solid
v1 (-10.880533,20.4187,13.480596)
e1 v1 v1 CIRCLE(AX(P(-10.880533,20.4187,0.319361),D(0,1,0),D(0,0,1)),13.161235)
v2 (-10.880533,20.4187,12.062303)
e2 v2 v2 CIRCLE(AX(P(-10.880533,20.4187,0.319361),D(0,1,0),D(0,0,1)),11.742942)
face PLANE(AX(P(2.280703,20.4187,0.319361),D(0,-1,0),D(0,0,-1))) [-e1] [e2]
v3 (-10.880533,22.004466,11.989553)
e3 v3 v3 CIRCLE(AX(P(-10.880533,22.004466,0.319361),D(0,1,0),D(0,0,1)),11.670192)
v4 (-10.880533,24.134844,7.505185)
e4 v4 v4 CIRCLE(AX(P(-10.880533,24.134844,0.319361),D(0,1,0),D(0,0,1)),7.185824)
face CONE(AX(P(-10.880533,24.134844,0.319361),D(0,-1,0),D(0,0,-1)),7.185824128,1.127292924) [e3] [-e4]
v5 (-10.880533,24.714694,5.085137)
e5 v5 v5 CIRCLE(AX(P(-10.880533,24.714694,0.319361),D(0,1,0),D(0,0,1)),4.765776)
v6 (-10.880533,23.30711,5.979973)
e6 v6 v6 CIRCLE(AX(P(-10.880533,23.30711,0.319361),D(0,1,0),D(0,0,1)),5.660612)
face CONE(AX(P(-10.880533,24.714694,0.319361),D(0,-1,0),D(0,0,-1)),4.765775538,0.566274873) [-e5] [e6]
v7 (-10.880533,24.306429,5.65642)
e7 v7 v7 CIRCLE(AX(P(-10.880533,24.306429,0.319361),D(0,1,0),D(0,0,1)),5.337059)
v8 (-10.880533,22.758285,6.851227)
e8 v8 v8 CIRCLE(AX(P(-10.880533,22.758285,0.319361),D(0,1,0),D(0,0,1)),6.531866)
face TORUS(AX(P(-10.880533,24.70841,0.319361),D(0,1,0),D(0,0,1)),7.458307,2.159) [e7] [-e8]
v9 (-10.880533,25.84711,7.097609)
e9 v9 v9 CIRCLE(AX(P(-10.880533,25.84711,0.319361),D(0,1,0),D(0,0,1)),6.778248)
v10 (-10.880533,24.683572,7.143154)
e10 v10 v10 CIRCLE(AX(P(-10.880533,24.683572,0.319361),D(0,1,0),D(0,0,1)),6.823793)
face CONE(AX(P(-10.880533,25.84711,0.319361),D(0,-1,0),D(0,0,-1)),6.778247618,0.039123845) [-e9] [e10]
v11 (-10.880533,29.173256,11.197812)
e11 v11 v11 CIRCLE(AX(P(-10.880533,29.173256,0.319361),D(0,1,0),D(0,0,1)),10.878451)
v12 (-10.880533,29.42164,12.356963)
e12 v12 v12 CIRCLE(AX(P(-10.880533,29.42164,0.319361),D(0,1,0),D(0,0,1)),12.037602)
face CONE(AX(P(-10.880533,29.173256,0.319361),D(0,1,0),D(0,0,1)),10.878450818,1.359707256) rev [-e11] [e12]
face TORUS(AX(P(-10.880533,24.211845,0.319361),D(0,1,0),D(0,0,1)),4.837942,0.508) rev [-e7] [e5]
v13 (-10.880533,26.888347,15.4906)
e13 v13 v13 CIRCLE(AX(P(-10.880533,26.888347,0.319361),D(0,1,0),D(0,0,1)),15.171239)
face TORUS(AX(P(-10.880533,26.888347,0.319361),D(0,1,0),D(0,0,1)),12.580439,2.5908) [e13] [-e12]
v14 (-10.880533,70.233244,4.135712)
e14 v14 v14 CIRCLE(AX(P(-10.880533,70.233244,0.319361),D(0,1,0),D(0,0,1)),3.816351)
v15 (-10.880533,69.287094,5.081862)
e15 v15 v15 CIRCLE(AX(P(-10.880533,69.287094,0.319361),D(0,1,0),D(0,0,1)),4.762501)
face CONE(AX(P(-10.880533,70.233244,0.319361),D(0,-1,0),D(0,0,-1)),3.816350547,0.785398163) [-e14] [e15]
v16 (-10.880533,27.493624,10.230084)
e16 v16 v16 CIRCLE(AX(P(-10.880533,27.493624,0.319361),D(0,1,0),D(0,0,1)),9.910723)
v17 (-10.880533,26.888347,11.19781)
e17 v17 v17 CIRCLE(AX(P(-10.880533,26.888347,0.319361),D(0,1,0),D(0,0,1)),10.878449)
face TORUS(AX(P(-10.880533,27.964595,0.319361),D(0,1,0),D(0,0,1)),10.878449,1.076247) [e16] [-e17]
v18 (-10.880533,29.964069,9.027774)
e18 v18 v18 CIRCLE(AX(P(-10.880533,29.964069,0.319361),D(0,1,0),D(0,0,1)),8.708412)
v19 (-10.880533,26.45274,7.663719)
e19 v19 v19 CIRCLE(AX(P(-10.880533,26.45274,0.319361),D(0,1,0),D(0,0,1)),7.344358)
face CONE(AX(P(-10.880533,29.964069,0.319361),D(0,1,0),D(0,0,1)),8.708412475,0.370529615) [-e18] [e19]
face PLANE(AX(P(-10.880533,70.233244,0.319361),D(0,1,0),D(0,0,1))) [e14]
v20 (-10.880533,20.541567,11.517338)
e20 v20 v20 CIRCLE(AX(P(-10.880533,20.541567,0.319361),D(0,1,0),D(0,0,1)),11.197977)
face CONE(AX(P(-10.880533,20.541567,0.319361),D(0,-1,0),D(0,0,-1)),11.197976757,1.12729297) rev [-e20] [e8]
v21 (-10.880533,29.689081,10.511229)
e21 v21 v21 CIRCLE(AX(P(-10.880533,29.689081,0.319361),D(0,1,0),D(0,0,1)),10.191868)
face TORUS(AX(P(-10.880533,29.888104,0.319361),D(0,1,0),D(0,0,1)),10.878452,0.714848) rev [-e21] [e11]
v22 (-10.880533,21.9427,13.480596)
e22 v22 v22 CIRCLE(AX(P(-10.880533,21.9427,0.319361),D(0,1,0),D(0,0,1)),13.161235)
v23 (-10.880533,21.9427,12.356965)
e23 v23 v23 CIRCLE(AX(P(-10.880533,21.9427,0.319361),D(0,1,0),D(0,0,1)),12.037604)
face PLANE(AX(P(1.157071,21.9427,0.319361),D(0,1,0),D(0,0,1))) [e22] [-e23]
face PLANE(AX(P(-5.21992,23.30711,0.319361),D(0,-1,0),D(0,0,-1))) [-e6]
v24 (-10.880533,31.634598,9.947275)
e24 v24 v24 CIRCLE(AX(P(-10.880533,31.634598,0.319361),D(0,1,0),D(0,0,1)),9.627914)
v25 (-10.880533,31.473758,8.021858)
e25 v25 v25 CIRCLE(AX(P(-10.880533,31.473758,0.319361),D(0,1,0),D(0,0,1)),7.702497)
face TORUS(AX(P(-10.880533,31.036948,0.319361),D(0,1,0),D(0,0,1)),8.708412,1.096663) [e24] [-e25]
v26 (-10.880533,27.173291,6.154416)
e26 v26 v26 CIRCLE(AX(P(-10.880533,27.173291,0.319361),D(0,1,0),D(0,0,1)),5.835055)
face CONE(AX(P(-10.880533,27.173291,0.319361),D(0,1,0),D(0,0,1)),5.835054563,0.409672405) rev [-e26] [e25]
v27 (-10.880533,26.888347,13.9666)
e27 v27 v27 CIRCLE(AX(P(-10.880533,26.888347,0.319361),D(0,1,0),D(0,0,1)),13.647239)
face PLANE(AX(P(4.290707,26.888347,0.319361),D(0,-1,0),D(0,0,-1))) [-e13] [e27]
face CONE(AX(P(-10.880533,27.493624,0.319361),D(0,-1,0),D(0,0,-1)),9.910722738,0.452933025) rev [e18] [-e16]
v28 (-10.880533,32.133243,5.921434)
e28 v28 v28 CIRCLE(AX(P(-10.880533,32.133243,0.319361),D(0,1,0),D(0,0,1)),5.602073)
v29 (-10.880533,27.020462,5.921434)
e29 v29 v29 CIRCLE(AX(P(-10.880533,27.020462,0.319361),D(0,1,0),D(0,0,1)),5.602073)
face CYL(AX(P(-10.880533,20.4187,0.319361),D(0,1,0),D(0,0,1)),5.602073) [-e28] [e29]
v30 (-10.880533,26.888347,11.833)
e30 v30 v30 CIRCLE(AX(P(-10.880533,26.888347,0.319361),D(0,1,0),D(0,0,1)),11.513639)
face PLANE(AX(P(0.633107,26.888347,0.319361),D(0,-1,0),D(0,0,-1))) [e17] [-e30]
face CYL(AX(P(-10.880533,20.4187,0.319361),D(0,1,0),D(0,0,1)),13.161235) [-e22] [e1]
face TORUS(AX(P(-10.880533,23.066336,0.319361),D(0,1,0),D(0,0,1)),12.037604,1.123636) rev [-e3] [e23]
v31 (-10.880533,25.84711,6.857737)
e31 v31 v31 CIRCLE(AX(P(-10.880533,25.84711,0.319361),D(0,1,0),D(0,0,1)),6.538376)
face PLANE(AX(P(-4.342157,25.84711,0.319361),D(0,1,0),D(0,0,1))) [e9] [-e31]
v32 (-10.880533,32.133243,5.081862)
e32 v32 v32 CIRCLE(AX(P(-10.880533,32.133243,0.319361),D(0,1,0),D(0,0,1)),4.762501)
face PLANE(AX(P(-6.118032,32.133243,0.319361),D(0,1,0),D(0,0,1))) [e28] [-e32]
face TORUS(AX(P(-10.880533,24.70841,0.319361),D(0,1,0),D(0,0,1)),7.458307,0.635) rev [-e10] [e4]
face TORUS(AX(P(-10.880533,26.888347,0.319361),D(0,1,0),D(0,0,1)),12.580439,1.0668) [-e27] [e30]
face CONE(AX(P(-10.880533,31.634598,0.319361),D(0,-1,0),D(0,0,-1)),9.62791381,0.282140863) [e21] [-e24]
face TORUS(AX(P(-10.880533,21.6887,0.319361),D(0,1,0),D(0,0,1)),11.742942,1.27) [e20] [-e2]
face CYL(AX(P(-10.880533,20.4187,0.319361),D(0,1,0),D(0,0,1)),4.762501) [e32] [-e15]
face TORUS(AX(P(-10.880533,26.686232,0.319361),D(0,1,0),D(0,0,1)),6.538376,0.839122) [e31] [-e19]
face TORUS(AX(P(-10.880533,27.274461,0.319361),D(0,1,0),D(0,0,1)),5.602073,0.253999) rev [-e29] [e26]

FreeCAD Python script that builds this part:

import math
import FreeCAD as App
import Part
import Sketcher
from FreeCAD import Vector
Q = App.Units.Quantity

doc = App.newDocument("Part")
body = doc.addObject("PartDesign::Body", "Body")

# Sketch on XY plane
sketch1 = doc.addObject("Sketcher::SketchObject", "Sketch")
body.addObject(sketch1)
sketch1.AttachmentSupport = (doc.XY_Plane, [""])
sketch1.MapMode = "FlatFace"
sketch1.AttachmentOffset = App.Placement(Vector(0, 0, 0.319361), App.Rotation())
sketch1.addGeometry(Part.LineSegment(Vector(-5.22, 23.31, 0), Vector(-10.88, 23.31, 0)), False)
sketch1.addGeometry(Part.LineSegment(Vector(-10.88, 23.31, 0), Vector(-10.88, 70.23, 0)), False)
sketch1.addGeometry(Part.LineSegment(Vector(-10.88, 70.23, 0), Vector(-7.06, 70.23, 0)), False)
sketch1.addGeometry(Part.LineSegment(Vector(-7.06, 70.23, 0), Vector(-6.12, 69.29, 0)), False)
sketch1.addGeometry(Part.LineSegment(Vector(-6.12, 69.29, 0), Vector(-6.12, 32.13, 0)), False)
sketch1.addGeometry(Part.LineSegment(Vector(-6.12, 32.13, 0), Vector(-5.28, 32.13, 0)), False)
sketch1.addGeometry(Part.LineSegment(Vector(-5.28, 32.13, 0), Vector(-5.28, 27.02, 0)), False)
sketch1.addGeometry(Part.ArcOfCircle(Part.Circle(Vector(-5.28, 27.27, 0), Vector(0, 0, 1), 0.25), math.radians(-90), math.radians(-23)), False)
sketch1.addGeometry(Part.LineSegment(Vector(-5.05, 27.17, 0), Vector(-3.18, 31.47, 0)), False)
sketch1.addGeometry(Part.ArcOfCircle(Part.Circle(Vector(-2.17, 31.04, 0), Vector(0, 0, 1), 1.1), math.radians(33), math.radians(157)), False)
sketch1.addGeometry(Part.LineSegment(Vector(-1.25, 31.63, 0), Vector(-0.69, 29.69, 0)), False)
sketch1.addGeometry(Part.ArcOfCircle(Part.Circle(Vector(0, 29.89, 0), Vector(0, 0, 1), 0.71), math.radians(-164), math.radians(-90)), False)
sketch1.addGeometry(Part.LineSegment(Vector(0, 29.17, 0), Vector(1.16, 29.42, 0)), False)
sketch1.addGeometry(Part.ArcOfCircle(Part.Circle(Vector(1.7, 26.89, 0), Vector(0, 0, 1), 2.59), math.radians(0), math.radians(102)), False)
sketch1.addGeometry(Part.LineSegment(Vector(4.29, 26.89, 0), Vector(2.77, 26.89, 0)), False)
sketch1.addGeometry(Part.ArcOfCircle(Part.Circle(Vector(1.7, 26.89, 0), Vector(0, 0, 1), 1.07), math.radians(180), math.radians(360)), False)
sketch1.addGeometry(Part.LineSegment(Vector(0.63, 26.89, 0), Vector(0, 26.89, 0)), False)
sketch1.addGeometry(Part.ArcOfCircle(Part.Circle(Vector(0, 27.96, 0), Vector(0, 0, 1), 1.08), math.radians(-154), math.radians(-90)), False)
sketch1.addGeometry(Part.LineSegment(Vector(-0.97, 27.49, 0), Vector(-2.17, 29.96, 0)), False)
sketch1.addGeometry(Part.LineSegment(Vector(-2.17, 29.96, 0), Vector(-3.54, 26.45, 0)), False)
sketch1.addGeometry(Part.ArcOfCircle(Part.Circle(Vector(-4.34, 26.69, 0), Vector(0, 0, 1), 0.84), math.radians(-90), math.radians(-16)), False)
sketch1.addGeometry(Part.LineSegment(Vector(-4.34, 25.85, 0), Vector(-4.1, 25.85, 0)), False)
sketch1.addGeometry(Part.LineSegment(Vector(-4.1, 25.85, 0), Vector(-4.06, 24.68, 0)), False)
sketch1.addGeometry(Part.ArcOfCircle(Part.Circle(Vector(-3.42, 24.71, 0), Vector(0, 0, 1), 0.63), math.radians(-178), math.radians(-115)), False)
sketch1.addGeometry(Part.LineSegment(Vector(-3.69, 24.13, 0), Vector(0.79, 22, 0)), False)
sketch1.addGeometry(Part.ArcOfCircle(Part.Circle(Vector(1.16, 23.07, 0), Vector(0, 0, 1), 1.12), math.radians(-109.09), math.radians(-90)), False)
sketch1.addGeometry(Part.LineSegment(Vector(1.16, 21.94, 0), Vector(2.28, 21.94, 0)), False)
sketch1.addGeometry(Part.LineSegment(Vector(2.28, 21.94, 0), Vector(2.28, 20.42, 0)), False)
sketch1.addGeometry(Part.LineSegment(Vector(2.28, 20.42, 0), Vector(0.86, 20.42, 0)), False)
sketch1.addGeometry(Part.ArcOfCircle(Part.Circle(Vector(0.86, 21.69, 0), Vector(0, 0, 1), 1.27), math.radians(-115), math.radians(-90)), False)
sketch1.addGeometry(Part.LineSegment(Vector(0.32, 20.54, 0), Vector(-4.35, 22.76, 0)), False)
sketch1.addGeometry(Part.ArcOfCircle(Part.Circle(Vector(-3.42, 24.71, 0), Vector(0, 0, 1), 2.16), math.radians(-169), math.radians(-115)), False)
sketch1.addGeometry(Part.ArcOfCircle(Part.Circle(Vector(-6.04, 24.21, 0), Vector(0, 0, 1), 0.51), math.radians(11), math.radians(98)), False)
sketch1.addGeometry(Part.LineSegment(Vector(-6.11, 24.71, 0), Vector(-5.22, 23.31, 0)), False)
sketch1.addGeometry(Part.LineSegment(Vector(-10.88, 20.42, 0), Vector(-10.88, 70.23, 0)), True)  # axis
sketch1.addConstraint(Sketcher.Constraint("Coincident", 0, 2, 1, 1))
sketch1.addConstraint(Sketcher.Constraint("Coincident", 1, 2, 2, 1))
sketch1.addConstraint(Sketcher.Constraint("Coincident", 2, 2, 3, 1))
sketch1.addConstraint(Sketcher.Constraint("Coincident", 3, 2, 4, 1))
sketch1.addConstraint(Sketcher.Constraint("Coincident", 4, 2, 5, 1))
sketch1.addConstraint(Sketcher.Constraint("Coincident", 5, 2, 6, 1))
sketch1.addConstraint(Sketcher.Constraint("Coincident", 6, 2, 7, 1))
sketch1.addConstraint(Sketcher.Constraint("Tangent", 7, 2, 8, 1))
sketch1.addConstraint(Sketcher.Constraint("Tangent", 8, 2, 9, 2))
sketch1.addConstraint(Sketcher.Constraint("Coincident", 9, 1, 10, 1))
sketch1.addConstraint(Sketcher.Constraint("Tangent", 10, 2, 11, 1))
sketch1.addConstraint(Sketcher.Constraint("Coincident", 11, 2, 12, 1))
sketch1.addConstraint(Sketcher.Constraint("Tangent", 12, 2, 13, 2))
sketch1.addConstraint(Sketcher.Constraint("Coincident", 13, 1, 14, 1))
sketch1.addConstraint(Sketcher.Constraint("Coincident", 14, 2, 15, 2))
sketch1.addConstraint(Sketcher.Constraint("Coincident", 15, 1, 16, 1))
sketch1.addConstraint(Sketcher.Constraint("Tangent", 16, 2, 17, 2))
sketch1.addConstraint(Sketcher.Constraint("Tangent", 17, 1, 18, 1))
sketch1.addConstraint(Sketcher.Constraint("Coincident", 18, 2, 19, 1))
sketch1.addConstraint(Sketcher.Constraint("Coincident", 19, 2, 20, 2))
sketch1.addConstraint(Sketcher.Constraint("Tangent", 20, 1, 21, 1))
sketch1.addConstraint(Sketcher.Constraint("Coincident", 21, 2, 22, 1))
sketch1.addConstraint(Sketcher.Constraint("Tangent", 22, 2, 23, 1))
sketch1.addConstraint(Sketcher.Constraint("Tangent", 23, 2, 24, 1))
sketch1.addConstraint(Sketcher.Constraint("Coincident", 24, 2, 25, 1))
sketch1.addConstraint(Sketcher.Constraint("Tangent", 25, 2, 26, 1))
sketch1.addConstraint(Sketcher.Constraint("Coincident", 26, 2, 27, 1))
sketch1.addConstraint(Sketcher.Constraint("Coincident", 27, 2, 28, 1))
sketch1.addConstraint(Sketcher.Constraint("Tangent", 28, 2, 29, 2))
sketch1.addConstraint(Sketcher.Constraint("Tangent", 29, 1, 30, 1))
sketch1.addConstraint(Sketcher.Constraint("Tangent", 30, 2, 31, 2))
sketch1.addConstraint(Sketcher.Constraint("Tangent", 31, 1, 32, 1))
sketch1.addConstraint(Sketcher.Constraint("Coincident", 32, 2, 33, 1))
sketch1.addConstraint(Sketcher.Constraint("Coincident", 33, 2, 0, 1))
sketch1.addConstraint(Sketcher.Constraint("Horizontal", 0))
sketch1.addConstraint(Sketcher.Constraint("Vertical", 1))
sketch1.addConstraint(Sketcher.Constraint("Horizontal", 2))
sketch1.addConstraint(Sketcher.Constraint("Vertical", 4))
sketch1.addConstraint(Sketcher.Constraint("Horizontal", 5))
sketch1.addConstraint(Sketcher.Constraint("Vertical", 6))
sketch1.addConstraint(Sketcher.Constraint("Horizontal", 14))
sketch1.addConstraint(Sketcher.Constraint("Horizontal", 16))
sketch1.addConstraint(Sketcher.Constraint("Horizontal", 21))
sketch1.addConstraint(Sketcher.Constraint("Horizontal", 26))
sketch1.addConstraint(Sketcher.Constraint("Vertical", 27))
sketch1.addConstraint(Sketcher.Constraint("Horizontal", 28))
sketch1.addConstraint(Sketcher.Constraint("Vertical", 34))
sketch1.addConstraint(Sketcher.Constraint("Coincident", 15, 3, 13, 3))
sketch1.addConstraint(Sketcher.Constraint("Coincident", 31, 3, 23, 3))
sketch1.addConstraint(Sketcher.Constraint("Coincident", 34, 2, 1, 2))
sketch1.addConstraint(Sketcher.Constraint("Parallel", 24, 30))
sketch1.addConstraint(Sketcher.Constraint("Horizontal", 15, 3, 13, 1))
sketch1.addConstraint(Sketcher.Constraint("Horizontal", 14, 2, 15, 1))
sketch1.addConstraint(Sketcher.Constraint("Horizontal", 28, 2, 34, 1))
sketch1.addConstraint(Sketcher.Constraint("Vertical", 7, 3, 5, 2))
sketch1.addConstraint(Sketcher.Constraint("Vertical", 17, 3, 11, 2))
sketch1.addConstraint(Sketcher.Constraint("Vertical", 25, 3, 12, 2))
sketch1.addConstraint(Sketcher.Constraint("Vertical", 9, 3, 18, 2))
sketch1.addConstraint(Sketcher.Constraint("Equal", 14, 27))
sketch1.addConstraint(Sketcher.Constraint("Radius", 7, Q("0.01 in")))
sketch1.addConstraint(Sketcher.Constraint("Radius", 29, Q("0.05 in")))
sketch1.addConstraint(Sketcher.Constraint("Radius", 32, Q("0.02 in")))
sketch1.addConstraint(Sketcher.Constraint("Angle", 3, Q("-45 deg")))
sketch1.addConstraint(Sketcher.Constraint("Radius", 13, Q("0.102 in")))
sketch1.addConstraint(Sketcher.Constraint("Radius", 15, Q("0.042 in")))
sketch1.addConstraint(Sketcher.Constraint("Radius", 23, Q("0.025 in")))
sketch1.addConstraint(Sketcher.Constraint("Radius", 31, Q("0.085 in")))
sketch1.addConstraint(Sketcher.Constraint("DistanceY", 4, 2, 34, 2, Q("1.5 in")))
sketch1.addConstraint(Sketcher.Constraint("Radius", 11, Q("0.714848 mm")))
sketch1.addConstraint(Sketcher.Constraint("Radius", 20, Q("0.839122 mm")))
sketch1.addConstraint(Sketcher.Constraint("DistanceX", 1, 2, 3, 2, Q("0.1875 in")))
sketch1.addConstraint(Sketcher.Constraint("Radius", 9, Q("1.096663 mm")))
sketch1.addConstraint(Sketcher.Constraint("Radius", 17, Q("1.076247 mm")))
sketch1.addConstraint(Sketcher.Constraint("Radius", 25, Q("1.123636 mm")))
sketch1.addConstraint(Sketcher.Constraint("DistanceX", 2, 1, 2, 2, Q("3.816351 mm")))
sketch1.addConstraint(Sketcher.Constraint("DistanceX", 16, 2, 16, 1, Q("0.63519 mm")))
sketch1.addConstraint(Sketcher.Constraint("DistanceX", 21, 1, 21, 2, Q("0.239872 mm")))
sketch1.addConstraint(Sketcher.Constraint("DistanceX", 26, 1, 26, 2, Q("1.123631 mm")))
sketch1.addConstraint(Sketcher.Constraint("DistanceY", 6, 2, 6, 1, Q("5.112781 mm")))
sketch1.addConstraint(Sketcher.Constraint("DistanceY", -1, 1, 29, 3, Q("21.6887 mm")))
sketch1.addConstraint(Sketcher.Constraint("DistanceY", -1, 1, 9, 1, Q("31.634598 mm")))
sketch1.addConstraint(Sketcher.Constraint("DistanceY", 13, 3, 9, 3, Q("4.1486 mm")))
sketch1.addConstraint(Sketcher.Constraint("DistanceY", 0, 2, 31, 3, Q("1.401299 mm")))
sketch1.addConstraint(Sketcher.Constraint("DistanceX", 2, 2, 11, 3, Q("7.062102 mm")))
sketch1.addConstraint(Sketcher.Constraint("DistanceX", 2, 2, 17, 3, Q("7.062099 mm")))
sketch1.addConstraint(Sketcher.Constraint("DistanceY", 17, 3, 3, 2, Q("41.322499 mm")))
sketch1.addConstraint(Sketcher.Constraint("DistanceX", 9, 3, 9, 1, Q("0.919501 mm")))
sketch1.addConstraint(Sketcher.Constraint("DistanceY", 23, 3, 20, 1, Q("1.138701 mm")))
sketch1.addConstraint(Sketcher.Constraint("DistanceY", 29, 1, 24, 2, Q("1.462899 mm")))
sketch1.addConstraint(Sketcher.Constraint("DistanceX", 32, 2, 20, 1, Q("1.7726 mm")))
sketch1.addConstraint(Sketcher.Constraint("Distance", 8, Q("4.688428 mm")))
sketch1.addConstraint(Sketcher.Constraint("Distance", 18, Q("2.74748 mm")))
sketch1.addConstraint(Sketcher.Constraint("Distance", 19, Q("3.766972 mm")))
sketch1.addConstraint(Sketcher.Constraint("Distance", 22, Q("1.164429 mm")))
sketch1.addConstraint(Sketcher.Constraint("Distance", 24, Q("4.964681 mm")))
sketch1.addConstraint(Sketcher.Constraint("Distance", 30, Q("5.165891 mm")))
sketch1.addConstraint(Sketcher.Constraint("Distance", 33, Q("1.66794 mm")))
sketch1.addConstraint(Sketcher.Constraint("DistanceX", 0, 2, 0, 1, Q("5.660612 mm")))
sketch1.addConstraint(Sketcher.Constraint("DistanceX", 5, 1, 5, 2, Q("0.839573 mm")))
sketch1.addConstraint(Sketcher.Constraint("DistanceX", 7, 3, -1, 1, Q("5.278459 mm")))
sketch1.addConstraint(Sketcher.Constraint("DistanceX", -1, 1, 25, 3, Q("1.157071 mm")))
revolution = doc.addObject("PartDesign::Revolution", "Revolution")
body.addObject(revolution)
revolution.Profile = sketch1
revolution.ReferenceAxis = (sketch1, ["Axis0"])
revolution.Angle = 360

doc.recompute()
